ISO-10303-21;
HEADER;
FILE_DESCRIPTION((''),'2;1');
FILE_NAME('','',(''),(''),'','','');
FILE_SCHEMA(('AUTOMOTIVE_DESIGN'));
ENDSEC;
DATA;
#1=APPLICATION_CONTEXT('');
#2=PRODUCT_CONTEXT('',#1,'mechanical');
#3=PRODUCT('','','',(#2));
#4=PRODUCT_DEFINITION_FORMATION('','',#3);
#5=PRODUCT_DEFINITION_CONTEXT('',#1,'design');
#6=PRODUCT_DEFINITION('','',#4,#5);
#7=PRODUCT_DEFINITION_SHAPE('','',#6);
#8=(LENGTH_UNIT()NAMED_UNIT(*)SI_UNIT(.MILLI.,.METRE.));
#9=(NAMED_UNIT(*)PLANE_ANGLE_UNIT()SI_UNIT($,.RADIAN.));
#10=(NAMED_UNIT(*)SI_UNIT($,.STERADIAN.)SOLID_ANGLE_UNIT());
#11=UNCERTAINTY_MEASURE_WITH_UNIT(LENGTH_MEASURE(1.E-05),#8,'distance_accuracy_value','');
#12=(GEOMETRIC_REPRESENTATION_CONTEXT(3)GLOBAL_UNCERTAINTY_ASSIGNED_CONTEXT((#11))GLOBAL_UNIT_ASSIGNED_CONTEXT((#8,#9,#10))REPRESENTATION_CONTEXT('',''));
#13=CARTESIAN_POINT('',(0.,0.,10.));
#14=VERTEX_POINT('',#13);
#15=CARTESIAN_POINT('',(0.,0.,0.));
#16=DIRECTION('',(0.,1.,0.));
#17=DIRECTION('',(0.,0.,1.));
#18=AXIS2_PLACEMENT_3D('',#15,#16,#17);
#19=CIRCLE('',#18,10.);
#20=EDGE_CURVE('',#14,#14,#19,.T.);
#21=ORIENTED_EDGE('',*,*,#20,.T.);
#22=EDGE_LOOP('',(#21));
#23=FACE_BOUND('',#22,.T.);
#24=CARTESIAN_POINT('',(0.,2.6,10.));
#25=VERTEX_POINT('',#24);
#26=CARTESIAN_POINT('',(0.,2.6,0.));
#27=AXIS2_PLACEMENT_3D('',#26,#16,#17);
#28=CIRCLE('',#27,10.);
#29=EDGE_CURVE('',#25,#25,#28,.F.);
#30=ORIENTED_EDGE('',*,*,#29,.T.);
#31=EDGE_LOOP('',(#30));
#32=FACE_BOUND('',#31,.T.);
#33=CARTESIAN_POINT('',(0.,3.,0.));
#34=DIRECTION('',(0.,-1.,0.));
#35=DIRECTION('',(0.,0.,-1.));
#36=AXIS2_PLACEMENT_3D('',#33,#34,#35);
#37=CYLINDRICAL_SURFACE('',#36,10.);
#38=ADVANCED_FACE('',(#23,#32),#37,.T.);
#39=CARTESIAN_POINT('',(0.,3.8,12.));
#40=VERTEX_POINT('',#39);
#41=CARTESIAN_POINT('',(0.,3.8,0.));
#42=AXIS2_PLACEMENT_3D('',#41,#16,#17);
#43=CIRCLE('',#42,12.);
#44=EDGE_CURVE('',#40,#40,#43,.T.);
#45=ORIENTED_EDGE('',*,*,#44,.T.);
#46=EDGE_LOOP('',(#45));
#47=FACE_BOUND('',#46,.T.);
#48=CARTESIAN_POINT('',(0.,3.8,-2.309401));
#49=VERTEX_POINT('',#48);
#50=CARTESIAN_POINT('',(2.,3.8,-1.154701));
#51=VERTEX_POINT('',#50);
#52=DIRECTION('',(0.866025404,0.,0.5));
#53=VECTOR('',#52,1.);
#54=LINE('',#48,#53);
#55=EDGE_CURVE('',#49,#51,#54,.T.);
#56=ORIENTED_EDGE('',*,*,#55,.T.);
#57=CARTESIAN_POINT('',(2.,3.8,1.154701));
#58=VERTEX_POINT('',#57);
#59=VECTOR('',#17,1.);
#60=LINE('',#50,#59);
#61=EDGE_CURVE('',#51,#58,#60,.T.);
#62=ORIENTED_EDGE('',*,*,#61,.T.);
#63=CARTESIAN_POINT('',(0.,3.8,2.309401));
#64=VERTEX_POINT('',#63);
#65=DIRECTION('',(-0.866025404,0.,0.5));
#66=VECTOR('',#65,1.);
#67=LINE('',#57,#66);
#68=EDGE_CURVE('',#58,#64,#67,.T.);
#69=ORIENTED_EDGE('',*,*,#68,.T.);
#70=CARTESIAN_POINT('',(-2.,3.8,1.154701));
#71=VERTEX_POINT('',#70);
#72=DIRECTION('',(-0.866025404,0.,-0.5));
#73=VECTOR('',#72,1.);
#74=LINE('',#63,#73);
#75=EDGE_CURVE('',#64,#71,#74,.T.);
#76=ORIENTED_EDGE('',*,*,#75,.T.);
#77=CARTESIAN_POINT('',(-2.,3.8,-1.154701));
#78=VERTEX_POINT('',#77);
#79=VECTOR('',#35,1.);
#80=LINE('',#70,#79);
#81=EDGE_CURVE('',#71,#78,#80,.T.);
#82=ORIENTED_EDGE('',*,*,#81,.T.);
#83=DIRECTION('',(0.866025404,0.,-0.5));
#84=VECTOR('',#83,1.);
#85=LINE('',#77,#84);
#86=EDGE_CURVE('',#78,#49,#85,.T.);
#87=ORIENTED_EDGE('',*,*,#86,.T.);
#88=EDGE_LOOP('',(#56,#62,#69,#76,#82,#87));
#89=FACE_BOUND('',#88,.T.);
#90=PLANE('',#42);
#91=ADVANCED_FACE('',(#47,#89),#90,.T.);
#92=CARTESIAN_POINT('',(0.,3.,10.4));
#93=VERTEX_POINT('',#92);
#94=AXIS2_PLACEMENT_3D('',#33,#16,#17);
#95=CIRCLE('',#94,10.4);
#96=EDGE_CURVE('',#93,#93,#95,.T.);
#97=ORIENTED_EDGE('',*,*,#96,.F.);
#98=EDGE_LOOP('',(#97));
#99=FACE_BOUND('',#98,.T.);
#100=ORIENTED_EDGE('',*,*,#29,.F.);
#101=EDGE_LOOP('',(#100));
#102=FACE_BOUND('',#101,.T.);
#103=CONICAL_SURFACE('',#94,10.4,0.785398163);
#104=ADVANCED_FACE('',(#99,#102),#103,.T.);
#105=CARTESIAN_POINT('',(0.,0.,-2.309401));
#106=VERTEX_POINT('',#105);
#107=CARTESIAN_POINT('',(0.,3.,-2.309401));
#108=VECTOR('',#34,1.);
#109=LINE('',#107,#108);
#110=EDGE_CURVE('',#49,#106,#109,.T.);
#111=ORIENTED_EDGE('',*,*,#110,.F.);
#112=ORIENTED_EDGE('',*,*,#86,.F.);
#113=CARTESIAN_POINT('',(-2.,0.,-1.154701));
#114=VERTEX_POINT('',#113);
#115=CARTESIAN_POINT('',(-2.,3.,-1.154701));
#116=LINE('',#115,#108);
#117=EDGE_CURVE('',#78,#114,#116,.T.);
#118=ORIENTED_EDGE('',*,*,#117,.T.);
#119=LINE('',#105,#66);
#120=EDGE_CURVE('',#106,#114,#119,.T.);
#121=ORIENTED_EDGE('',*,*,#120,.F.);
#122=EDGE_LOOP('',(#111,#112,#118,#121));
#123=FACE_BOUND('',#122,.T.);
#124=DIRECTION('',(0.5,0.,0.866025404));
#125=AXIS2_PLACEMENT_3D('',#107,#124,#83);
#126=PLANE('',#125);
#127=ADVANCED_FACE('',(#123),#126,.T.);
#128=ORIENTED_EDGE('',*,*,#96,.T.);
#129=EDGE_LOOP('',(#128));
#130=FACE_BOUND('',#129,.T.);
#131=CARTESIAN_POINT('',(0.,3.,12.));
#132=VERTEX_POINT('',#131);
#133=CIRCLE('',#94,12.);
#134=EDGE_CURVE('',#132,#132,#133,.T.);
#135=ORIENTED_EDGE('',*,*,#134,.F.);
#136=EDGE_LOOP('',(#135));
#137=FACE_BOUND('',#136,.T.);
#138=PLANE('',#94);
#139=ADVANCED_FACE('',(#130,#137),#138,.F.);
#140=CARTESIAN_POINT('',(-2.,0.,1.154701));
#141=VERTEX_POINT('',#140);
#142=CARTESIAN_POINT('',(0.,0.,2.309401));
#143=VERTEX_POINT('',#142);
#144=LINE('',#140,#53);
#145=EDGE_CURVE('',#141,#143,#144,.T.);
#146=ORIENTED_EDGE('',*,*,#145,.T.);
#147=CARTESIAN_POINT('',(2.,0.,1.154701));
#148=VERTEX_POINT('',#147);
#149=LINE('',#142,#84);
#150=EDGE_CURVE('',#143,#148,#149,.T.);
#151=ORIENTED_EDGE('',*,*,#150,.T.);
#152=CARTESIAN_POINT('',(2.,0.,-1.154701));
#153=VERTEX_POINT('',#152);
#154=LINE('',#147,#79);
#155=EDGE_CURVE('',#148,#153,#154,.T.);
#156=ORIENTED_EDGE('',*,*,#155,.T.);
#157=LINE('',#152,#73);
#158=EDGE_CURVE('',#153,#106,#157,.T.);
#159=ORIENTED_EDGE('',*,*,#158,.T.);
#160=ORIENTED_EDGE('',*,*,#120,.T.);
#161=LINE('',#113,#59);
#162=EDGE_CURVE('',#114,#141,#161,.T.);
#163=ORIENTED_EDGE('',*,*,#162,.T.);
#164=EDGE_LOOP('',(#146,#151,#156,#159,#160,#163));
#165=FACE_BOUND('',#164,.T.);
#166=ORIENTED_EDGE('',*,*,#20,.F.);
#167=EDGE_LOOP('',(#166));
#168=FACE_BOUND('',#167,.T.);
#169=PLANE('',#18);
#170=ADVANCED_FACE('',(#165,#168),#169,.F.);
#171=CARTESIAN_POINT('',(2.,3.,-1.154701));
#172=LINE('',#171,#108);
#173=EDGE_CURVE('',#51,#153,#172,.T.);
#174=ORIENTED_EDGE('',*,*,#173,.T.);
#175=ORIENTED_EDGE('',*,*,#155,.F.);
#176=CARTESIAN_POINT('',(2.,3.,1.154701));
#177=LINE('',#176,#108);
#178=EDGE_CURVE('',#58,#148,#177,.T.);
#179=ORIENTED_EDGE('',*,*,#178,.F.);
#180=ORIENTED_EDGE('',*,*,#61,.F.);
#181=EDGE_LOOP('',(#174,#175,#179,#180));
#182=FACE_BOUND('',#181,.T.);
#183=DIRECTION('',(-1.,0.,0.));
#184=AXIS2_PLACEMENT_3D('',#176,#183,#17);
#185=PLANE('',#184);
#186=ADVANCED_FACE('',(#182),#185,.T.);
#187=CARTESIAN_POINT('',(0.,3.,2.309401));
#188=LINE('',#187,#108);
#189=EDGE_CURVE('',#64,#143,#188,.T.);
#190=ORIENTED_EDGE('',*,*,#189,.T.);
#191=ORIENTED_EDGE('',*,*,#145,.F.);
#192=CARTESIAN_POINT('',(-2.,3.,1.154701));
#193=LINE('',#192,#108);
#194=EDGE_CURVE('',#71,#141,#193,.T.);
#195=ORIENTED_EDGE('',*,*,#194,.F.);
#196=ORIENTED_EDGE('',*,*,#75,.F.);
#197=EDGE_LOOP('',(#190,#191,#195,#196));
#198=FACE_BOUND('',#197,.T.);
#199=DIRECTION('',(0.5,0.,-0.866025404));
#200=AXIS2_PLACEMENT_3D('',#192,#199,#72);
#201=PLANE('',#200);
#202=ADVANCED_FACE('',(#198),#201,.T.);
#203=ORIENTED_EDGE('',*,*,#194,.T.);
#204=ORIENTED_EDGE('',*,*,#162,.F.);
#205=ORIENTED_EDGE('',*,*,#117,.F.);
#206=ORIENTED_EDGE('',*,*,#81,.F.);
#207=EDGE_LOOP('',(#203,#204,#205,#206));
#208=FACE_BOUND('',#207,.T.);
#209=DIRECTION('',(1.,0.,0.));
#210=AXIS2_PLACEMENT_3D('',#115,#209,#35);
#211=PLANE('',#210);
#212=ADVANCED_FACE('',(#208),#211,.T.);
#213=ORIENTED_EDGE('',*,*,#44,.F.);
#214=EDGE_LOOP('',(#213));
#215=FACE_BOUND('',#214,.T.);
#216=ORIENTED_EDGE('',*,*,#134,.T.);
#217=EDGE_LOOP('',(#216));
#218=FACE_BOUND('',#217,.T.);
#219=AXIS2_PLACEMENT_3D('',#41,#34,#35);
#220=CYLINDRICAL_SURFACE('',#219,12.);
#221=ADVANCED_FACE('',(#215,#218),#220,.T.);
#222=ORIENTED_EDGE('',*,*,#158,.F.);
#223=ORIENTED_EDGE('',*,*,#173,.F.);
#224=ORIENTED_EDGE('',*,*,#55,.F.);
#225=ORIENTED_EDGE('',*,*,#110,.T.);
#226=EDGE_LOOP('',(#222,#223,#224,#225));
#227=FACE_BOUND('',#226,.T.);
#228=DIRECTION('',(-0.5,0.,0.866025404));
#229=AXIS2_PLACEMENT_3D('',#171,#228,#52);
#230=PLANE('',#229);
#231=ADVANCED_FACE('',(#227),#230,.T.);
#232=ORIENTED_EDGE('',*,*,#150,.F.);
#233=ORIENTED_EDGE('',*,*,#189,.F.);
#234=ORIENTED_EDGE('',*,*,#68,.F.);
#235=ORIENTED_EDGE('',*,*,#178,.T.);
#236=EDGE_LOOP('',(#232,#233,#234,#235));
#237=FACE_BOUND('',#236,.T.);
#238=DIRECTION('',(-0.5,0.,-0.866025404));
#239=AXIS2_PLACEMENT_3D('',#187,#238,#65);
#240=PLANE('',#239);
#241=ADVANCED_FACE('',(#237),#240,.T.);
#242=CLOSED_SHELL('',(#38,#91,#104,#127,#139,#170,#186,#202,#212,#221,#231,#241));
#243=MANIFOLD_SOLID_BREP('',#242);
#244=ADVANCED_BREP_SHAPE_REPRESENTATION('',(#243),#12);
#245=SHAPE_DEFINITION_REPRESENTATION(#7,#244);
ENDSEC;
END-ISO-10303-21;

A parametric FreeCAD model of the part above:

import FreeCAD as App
import Part
import Sketcher
Q = App.Units.Quantity


def edges_at(feature, points):
    """Names of the edges that pass closest to the given points."""
    edges = feature.Shape.Edges
    near = lambda p: min(range(len(edges)), key=lambda i: edges[i].distToShape(Part.Vertex(*p))[0])
    return sorted({f"Edge{near(p) + 1}" for p in points})

doc = App.newDocument("Part")
body = doc.addObject("PartDesign::Body", "Body")

sketch1 = body.newObject("Sketcher::SketchObject", "Sketch")
sketch1.AttachmentSupport = (doc.getObject("XZ_Plane"), [""])
sketch1.MapMode = "FlatFace"
sketch1.addGeometry(Part.Circle(App.Vector(0, 0, 0), App.Vector(0, 0, 1), 10), False)
sketch1.addGeometry(Part.LineSegment(App.Vector(-2, -1.2, 0), App.Vector(0, -2.3, 0)), False)
sketch1.addGeometry(Part.LineSegment(App.Vector(0, -2.3, 0), App.Vector(2, -1.2, 0)), False)
sketch1.addGeometry(Part.LineSegment(App.Vector(2, -1.2, 0), App.Vector(2, 1.2, 0)), False)
sketch1.addGeometry(Part.LineSegment(App.Vector(2, 1.2, 0), App.Vector(0, 2.3, 0)), False)
sketch1.addGeometry(Part.LineSegment(App.Vector(0, 2.3, 0), App.Vector(-2, 1.2, 0)), False)
sketch1.addGeometry(Part.LineSegment(App.Vector(-2, 1.2, 0), App.Vector(-2, -1.2, 0)), False)
sketch1.addConstraint(Sketcher.Constraint("Coincident", 1, 2, 2, 1))
sketch1.addConstraint(Sketcher.Constraint("Coincident", 2, 2, 3, 1))
sketch1.addConstraint(Sketcher.Constraint("Coincident", 3, 2, 4, 1))
sketch1.addConstraint(Sketcher.Constraint("Coincident", 4, 2, 5, 1))
sketch1.addConstraint(Sketcher.Constraint("Coincident", 5, 2, 6, 1))
sketch1.addConstraint(Sketcher.Constraint("Coincident", 6, 2, 1, 1))
sketch1.addConstraint(Sketcher.Constraint("Vertical", 3))
sketch1.addConstraint(Sketcher.Constraint("Vertical", 6))
sketch1.addConstraint(Sketcher.Constraint("Coincident", 0, 3, -1, 1))
sketch1.addConstraint(Sketcher.Constraint("Symmetric", 1, 2, 4, 2, -1, 1))
sketch1.addConstraint(Sketcher.Constraint("Symmetric", 2, 2, 5, 2, -1, 1))
sketch1.addConstraint(Sketcher.Constraint("PointOnObject", 1, 2, -2))
sketch1.addConstraint(Sketcher.Constraint("Parallel", 1, 4))
sketch1.addConstraint(Sketcher.Constraint("Horizontal", 3, 2, 5, 2))
sketch1.addConstraint(Sketcher.Constraint("Diameter", 0, 20.0))
sketch1.addConstraint(Sketcher.Constraint("Angle", 1, Q("-30 deg")))
sketch1.addConstraint(Sketcher.Constraint("DistanceX", -1, 1, 2, 2, 2.0))
sketch1.addConstraint(Sketcher.Constraint("DistanceY", 3, 1, 3, 2, 2.309401))
pad1 = body.newObject("PartDesign::Pad", "Pad")
pad1.Profile = sketch1
pad1.Length = 3
pad1.Reversed = True

sketch2 = body.newObject("Sketcher::SketchObject", "Sketch001")
sketch2.AttachmentSupport = (doc.getObject("XZ_Plane"), [""])
sketch2.MapMode = "FlatFace"
sketch2.AttachmentOffset = App.Placement(App.Vector(0, 0, -3), App.Rotation())
sketch2.addGeometry(Part.Circle(App.Vector(0, 0, 0), App.Vector(0, 0, 1), 12), False)
sketch2.addConstraint(Sketcher.Constraint("Coincident", 0, 3, -1, 1))
sketch2.addConstraint(Sketcher.Constraint("Diameter", 0, 24.0))
pad2 = body.newObject("PartDesign::Pad", "Pad001")
pad2.Profile = sketch2
pad2.Length = 0.8
pad2.Reversed = True

sketch3 = body.newObject("Sketcher::SketchObject", "Sketch002")
sketch3.AttachmentSupport = (doc.getObject("XZ_Plane"), [""])
sketch3.MapMode = "FlatFace"
sketch3.addGeometry(Part.LineSegment(App.Vector(0, -2.3, 0), App.Vector(2, -1.2, 0)), False)
sketch3.addGeometry(Part.LineSegment(App.Vector(2, -1.2, 0), App.Vector(2, 1.2, 0)), False)
sketch3.addGeometry(Part.LineSegment(App.Vector(2, 1.2, 0), App.Vector(0, 2.3, 0)), False)
sketch3.addGeometry(Part.LineSegment(App.Vector(0, 2.3, 0), App.Vector(-2, 1.2, 0)), False)
sketch3.addGeometry(Part.LineSegment(App.Vector(-2, 1.2, 0), App.Vector(-2, -1.2, 0)), False)
sketch3.addGeometry(Part.LineSegment(App.Vector(-2, -1.2, 0), App.Vector(0, -2.3, 0)), False)
sketch3.addConstraint(Sketcher.Constraint("Coincident", 0, 2, 1, 1))
sketch3.addConstraint(Sketcher.Constraint("Coincident", 1, 2, 2, 1))
sketch3.addConstraint(Sketcher.Constraint("Coincident", 2, 2, 3, 1))
sketch3.addConstraint(Sketcher.Constraint("Coincident", 3, 2, 4, 1))
sketch3.addConstraint(Sketcher.Constraint("Coincident", 4, 2, 5, 1))
sketch3.addConstraint(Sketcher.Constraint("Coincident", 5, 2, 0, 1))
sketch3.addConstraint(Sketcher.Constraint("Vertical", 1))
sketch3.addConstraint(Sketcher.Constraint("Vertical", 4))
sketch3.addConstraint(Sketcher.Constraint("Symmetric", 0, 2, 3, 2, -1, 1))
sketch3.addConstraint(Sketcher.Constraint("Symmetric", 2, 2, 5, 2, -1, 1))
sketch3.addConstraint(Sketcher.Constraint("PointOnObject", 2, 2, -2))
sketch3.addConstraint(Sketcher.Constraint("Parallel", 2, 5))
sketch3.addConstraint(Sketcher.Constraint("Horizontal", 1, 2, 3, 2))
sketch3.addConstraint(Sketcher.Constraint("Angle", 0, Q("30 deg")))
sketch3.addConstraint(Sketcher.Constraint("DistanceX", -1, 1, 0, 2, 2.0))
sketch3.addConstraint(Sketcher.Constraint("DistanceY", 1, 1, 1, 2, 2.309401))
pocket1 = body.newObject("PartDesign::Pocket", "Pocket")
pocket1.Profile = sketch3
pocket1.Type = "ThroughAll"
doc.recompute()

chamfer = body.newObject("PartDesign::Chamfer", "Chamfer")
chamfer.Base = (pocket1, edges_at(pocket1, [(0, 3, -10)]))
chamfer.Size = 0.4

doc.recompute()
